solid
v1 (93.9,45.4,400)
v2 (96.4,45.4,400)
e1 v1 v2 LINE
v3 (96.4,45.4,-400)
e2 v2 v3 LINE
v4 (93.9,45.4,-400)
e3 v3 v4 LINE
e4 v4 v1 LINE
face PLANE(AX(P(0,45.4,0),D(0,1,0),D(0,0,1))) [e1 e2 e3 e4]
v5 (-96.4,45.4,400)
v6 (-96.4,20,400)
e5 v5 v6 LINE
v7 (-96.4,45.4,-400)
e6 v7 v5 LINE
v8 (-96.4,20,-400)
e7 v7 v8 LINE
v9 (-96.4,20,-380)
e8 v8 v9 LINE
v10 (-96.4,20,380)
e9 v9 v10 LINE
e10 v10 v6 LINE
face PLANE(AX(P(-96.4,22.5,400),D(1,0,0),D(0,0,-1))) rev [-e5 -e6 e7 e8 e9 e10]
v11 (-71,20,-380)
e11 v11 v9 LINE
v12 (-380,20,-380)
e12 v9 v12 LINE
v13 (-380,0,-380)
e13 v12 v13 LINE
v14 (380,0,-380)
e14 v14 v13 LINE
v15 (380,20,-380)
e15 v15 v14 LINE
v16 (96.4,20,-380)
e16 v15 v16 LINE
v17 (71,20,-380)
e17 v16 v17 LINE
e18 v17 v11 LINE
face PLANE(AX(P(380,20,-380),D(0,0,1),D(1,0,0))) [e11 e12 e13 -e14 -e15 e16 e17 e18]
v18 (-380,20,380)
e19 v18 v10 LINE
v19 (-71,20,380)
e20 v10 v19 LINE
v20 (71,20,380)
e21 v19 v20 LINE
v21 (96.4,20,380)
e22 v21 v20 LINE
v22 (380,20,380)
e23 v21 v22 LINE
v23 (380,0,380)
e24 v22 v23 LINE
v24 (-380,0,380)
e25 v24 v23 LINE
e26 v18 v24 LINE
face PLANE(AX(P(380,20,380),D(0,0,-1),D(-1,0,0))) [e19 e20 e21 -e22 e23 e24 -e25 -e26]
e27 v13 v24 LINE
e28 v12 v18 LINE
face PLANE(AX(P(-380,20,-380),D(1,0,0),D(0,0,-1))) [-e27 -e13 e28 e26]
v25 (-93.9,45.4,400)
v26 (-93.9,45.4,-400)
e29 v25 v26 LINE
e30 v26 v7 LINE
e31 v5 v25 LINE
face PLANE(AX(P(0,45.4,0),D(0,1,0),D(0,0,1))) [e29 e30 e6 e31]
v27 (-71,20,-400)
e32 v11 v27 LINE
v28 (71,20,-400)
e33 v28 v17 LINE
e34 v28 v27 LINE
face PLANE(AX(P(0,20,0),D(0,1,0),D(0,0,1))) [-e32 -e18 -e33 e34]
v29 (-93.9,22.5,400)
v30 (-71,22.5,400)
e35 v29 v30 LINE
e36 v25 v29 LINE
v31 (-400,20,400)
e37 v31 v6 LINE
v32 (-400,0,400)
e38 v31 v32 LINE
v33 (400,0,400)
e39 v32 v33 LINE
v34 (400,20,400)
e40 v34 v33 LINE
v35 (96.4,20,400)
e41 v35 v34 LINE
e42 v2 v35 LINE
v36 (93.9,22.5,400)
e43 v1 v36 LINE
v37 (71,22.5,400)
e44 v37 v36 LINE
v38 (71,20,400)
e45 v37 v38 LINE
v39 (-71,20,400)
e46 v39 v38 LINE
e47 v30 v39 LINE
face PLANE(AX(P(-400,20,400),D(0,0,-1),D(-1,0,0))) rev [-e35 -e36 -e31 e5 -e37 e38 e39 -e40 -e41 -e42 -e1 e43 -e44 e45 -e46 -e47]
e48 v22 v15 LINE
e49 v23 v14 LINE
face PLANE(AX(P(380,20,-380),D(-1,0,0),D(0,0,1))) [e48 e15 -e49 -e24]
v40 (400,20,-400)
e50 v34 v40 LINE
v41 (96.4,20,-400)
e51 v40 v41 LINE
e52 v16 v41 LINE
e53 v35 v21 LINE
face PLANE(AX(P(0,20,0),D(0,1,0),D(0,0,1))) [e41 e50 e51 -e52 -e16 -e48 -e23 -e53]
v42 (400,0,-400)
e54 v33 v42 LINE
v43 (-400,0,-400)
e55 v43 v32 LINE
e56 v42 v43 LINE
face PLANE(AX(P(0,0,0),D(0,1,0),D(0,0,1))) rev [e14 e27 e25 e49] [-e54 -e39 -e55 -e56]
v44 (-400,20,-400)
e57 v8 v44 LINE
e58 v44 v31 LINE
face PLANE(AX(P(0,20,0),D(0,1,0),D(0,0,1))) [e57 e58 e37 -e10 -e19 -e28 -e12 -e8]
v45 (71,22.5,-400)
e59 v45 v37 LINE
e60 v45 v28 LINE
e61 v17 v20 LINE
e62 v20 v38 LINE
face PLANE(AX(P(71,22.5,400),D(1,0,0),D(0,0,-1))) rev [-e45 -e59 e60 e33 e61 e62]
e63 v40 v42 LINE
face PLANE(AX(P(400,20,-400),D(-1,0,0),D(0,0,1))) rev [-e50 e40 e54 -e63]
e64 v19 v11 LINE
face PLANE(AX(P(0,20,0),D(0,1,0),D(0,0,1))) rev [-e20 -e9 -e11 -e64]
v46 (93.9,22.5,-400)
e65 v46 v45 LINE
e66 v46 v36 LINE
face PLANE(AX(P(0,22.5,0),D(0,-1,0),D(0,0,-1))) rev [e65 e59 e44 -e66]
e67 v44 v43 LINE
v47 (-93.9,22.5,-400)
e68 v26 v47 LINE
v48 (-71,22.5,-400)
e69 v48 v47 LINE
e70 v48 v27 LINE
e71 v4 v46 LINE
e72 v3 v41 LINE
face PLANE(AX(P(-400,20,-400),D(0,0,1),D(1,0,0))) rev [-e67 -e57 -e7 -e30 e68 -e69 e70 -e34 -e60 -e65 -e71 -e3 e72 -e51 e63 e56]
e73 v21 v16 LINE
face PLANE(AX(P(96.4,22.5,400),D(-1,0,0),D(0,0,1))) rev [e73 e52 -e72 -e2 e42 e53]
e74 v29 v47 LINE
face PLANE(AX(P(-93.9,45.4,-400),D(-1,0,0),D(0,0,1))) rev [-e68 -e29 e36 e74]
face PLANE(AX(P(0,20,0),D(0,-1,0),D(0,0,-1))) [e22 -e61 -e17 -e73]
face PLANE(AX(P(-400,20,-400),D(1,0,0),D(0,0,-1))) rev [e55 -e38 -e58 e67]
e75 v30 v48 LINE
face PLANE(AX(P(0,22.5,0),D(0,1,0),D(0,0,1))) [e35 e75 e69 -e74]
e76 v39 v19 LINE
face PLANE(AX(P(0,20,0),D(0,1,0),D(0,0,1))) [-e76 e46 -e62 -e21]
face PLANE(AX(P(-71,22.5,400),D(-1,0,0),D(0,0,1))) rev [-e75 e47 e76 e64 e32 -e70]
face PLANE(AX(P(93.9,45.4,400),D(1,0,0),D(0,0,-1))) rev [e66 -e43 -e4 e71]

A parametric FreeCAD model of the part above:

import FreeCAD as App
import Part
import Sketcher

V = App.Vector


def add_polygon(sketch, points):
    """Adds a closed chain of lines whose ends are joined by coincident constraints."""
    first, n = sketch.GeometryCount, len(points)
    for a, b in zip(points, points[1:] + points[:1]):
        sketch.addGeometry(Part.LineSegment(App.Vector(*a, 0), App.Vector(*b, 0)), False)
    for i in range(n):
        sketch.addConstraint(Sketcher.Constraint("Coincident", first + i, 2, first + (i + 1) % n, 1))

doc = App.newDocument("Part")
body = doc.addObject("PartDesign::Body", "Body")

# Sketch on XZ plane
sketch1 = doc.addObject("Sketcher::SketchObject", "Sketch")
body.addObject(sketch1)
sketch1.AttachmentSupport = (doc.XZ_Plane, [""])
sketch1.MapMode = "FlatFace"
add_polygon(sketch1, [(-400, -400), (-400, 400), (400, 400), (400, -400)])  # lines 0-3
add_polygon(sketch1, [(380, 380), (-380, 380), (-380, -380), (380, -380)])  # lines 4-7
sketch1.addConstraint([
    Sketcher.Constraint("Vertical", 0),
    Sketcher.Constraint("Horizontal", 1),
    Sketcher.Constraint("Vertical", 2),
    Sketcher.Constraint("Horizontal", 3),
    Sketcher.Constraint("Horizontal", 4),
    Sketcher.Constraint("Vertical", 5),
    Sketcher.Constraint("Horizontal", 6),
    Sketcher.Constraint("Vertical", 7),
    Sketcher.Constraint("Symmetric", 0, 2, 2, 2, -1, 1),
    Sketcher.Constraint("Symmetric", 4, 2, 6, 2, -1, 1),
    Sketcher.Constraint("Equal", 3, 0),
    Sketcher.Constraint("Equal", 6, 5),
    Sketcher.Constraint("DistanceX", 1, 1, 1, 2, 800.0),
    Sketcher.Constraint("DistanceX", 4, 2, 4, 1, 760.0),
])
pad1 = doc.addObject("PartDesign::Pad", "Pad")
body.addObject(pad1)
pad1.Profile = sketch1
pad1.Length = 20
pad1.Reversed = True

# Sketch on XZ plane
sketch2 = doc.addObject("Sketcher::SketchObject", "Sketch001")
body.addObject(sketch2)
sketch2.AttachmentSupport = (doc.XZ_Plane, [""])
sketch2.MapMode = "FlatFace"
sketch2.AttachmentOffset = App.Placement(V(0, 0, -20), App.Rotation())
add_polygon(sketch2, [(71, -400), (71, 400), (96, 400), (96, -400)])  # lines 0-3
add_polygon(sketch2, [(-96, -400), (-96, 400), (-71, 400), (-71, -400)])  # lines 4-7
sketch2.addConstraint([
    Sketcher.Constraint("Vertical", 0),
    Sketcher.Constraint("Horizontal", 1),
    Sketcher.Constraint("Vertical", 2),
    Sketcher.Constraint("Horizontal", 3),
    Sketcher.Constraint("Vertical", 4),
    Sketcher.Constraint("Horizontal", 5),
    Sketcher.Constraint("Vertical", 6),
    Sketcher.Constraint("Horizontal", 7),
    Sketcher.Constraint("Symmetric", 2, 2, 4, 2, -1, 1),
    Sketcher.Constraint("Symmetric", 0, 2, 6, 2, -1, 1),
    Sketcher.Constraint("Horizontal", 1, 2, 4, 2),
    Sketcher.Constraint("DistanceY", 0, 1, 0, 2, 800.0),
    Sketcher.Constraint("DistanceX", 1, 1, 1, 2, 25.4),
    Sketcher.Constraint("DistanceX", -1, 1, 0, 2, 71.0),
])
pad2 = doc.addObject("PartDesign::Pad", "Pad001")
body.addObject(pad2)
pad2.Profile = sketch2
pad2.Length = 2.5
pad2.Reversed = True

# Sketch on XZ plane
sketch3 = doc.addObject("Sketcher::SketchObject", "Sketch002")
body.addObject(sketch3)
sketch3.AttachmentSupport = (doc.XZ_Plane, [""])
sketch3.MapMode = "FlatFace"
sketch3.AttachmentOffset = App.Placement(V(0, 0, -22.5), App.Rotation())
add_polygon(sketch3, [(-96.4, -400), (-96.4, 400), (-93.9, 400), (-93.9, -400)])  # lines 0-3
add_polygon(sketch3, [(93.9, -400), (93.9, 400), (96.4, 400), (96.4, -400)])  # lines 4-7
sketch3.addConstraint([
    Sketcher.Constraint("Vertical", 0),
    Sketcher.Constraint("Horizontal", 1),
    Sketcher.Constraint("Vertical", 2),
    Sketcher.Constraint("Horizontal", 3),
    Sketcher.Constraint("Vertical", 4),
    Sketcher.Constraint("Horizontal", 5),
    Sketcher.Constraint("Vertical", 6),
    Sketcher.Constraint("Horizontal", 7),
    Sketcher.Constraint("Symmetric", 2, 2, 4, 2, -1, 1),
    Sketcher.Constraint("Symmetric", 0, 2, 6, 2, -1, 1),
    Sketcher.Constraint("Horizontal", 1, 2, 4, 2),
    Sketcher.Constraint("DistanceY", 0, 1, 0, 2, 800.0),
    Sketcher.Constraint("DistanceX", 1, 1, 1, 2, 2.5),
    Sketcher.Constraint("DistanceX", 0, 2, -1, 1, 96.4),
])
pad3 = doc.addObject("PartDesign::Pad", "Pad002")
body.addObject(pad3)
pad3.Profile = sketch3
pad3.Length = 22.9
pad3.Reversed = True

doc.recompute()
